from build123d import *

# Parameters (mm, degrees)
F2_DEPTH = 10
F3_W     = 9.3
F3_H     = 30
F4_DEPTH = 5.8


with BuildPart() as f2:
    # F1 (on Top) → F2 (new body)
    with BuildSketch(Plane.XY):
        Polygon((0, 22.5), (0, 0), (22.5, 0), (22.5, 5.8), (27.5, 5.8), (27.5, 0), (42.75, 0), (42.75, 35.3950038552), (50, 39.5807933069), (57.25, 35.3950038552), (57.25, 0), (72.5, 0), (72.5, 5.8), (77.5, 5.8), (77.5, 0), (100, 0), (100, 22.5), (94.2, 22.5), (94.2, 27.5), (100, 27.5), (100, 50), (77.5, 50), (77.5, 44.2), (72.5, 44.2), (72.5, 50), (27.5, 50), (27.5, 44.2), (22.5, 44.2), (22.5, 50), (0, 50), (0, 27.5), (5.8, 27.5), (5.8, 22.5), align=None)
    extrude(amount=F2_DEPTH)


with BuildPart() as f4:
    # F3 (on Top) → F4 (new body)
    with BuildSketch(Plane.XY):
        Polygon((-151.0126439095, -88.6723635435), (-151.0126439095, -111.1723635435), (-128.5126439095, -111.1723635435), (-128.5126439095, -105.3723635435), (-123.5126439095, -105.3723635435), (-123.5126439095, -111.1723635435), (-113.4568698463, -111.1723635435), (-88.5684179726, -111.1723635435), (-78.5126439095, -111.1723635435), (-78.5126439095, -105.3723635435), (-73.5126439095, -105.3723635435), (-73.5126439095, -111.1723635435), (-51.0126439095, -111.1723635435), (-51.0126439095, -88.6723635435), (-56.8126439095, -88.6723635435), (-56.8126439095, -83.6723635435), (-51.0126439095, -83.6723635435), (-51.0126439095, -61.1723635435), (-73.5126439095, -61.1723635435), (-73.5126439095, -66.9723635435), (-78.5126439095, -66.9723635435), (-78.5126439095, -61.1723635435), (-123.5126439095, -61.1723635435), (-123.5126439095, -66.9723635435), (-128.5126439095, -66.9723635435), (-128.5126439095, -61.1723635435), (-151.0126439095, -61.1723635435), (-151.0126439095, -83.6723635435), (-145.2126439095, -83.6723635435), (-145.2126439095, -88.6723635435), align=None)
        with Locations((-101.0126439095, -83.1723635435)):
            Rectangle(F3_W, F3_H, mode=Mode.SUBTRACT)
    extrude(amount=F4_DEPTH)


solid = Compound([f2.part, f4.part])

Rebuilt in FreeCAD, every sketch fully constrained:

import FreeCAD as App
import Part
import Sketcher

V = App.Vector
Q = App.Units.Quantity

doc = App.newDocument("Part")
body = doc.addObject("PartDesign::Body", "Body")

sketch1 = doc.addObject("Sketcher::SketchObject", "Sketch")
body.addObject(sketch1)
sketch1.AttachmentSupport = (doc.XY_Plane, [""])
sketch1.MapMode = "FlatFace"
sketch1.addGeometry([
    Part.LineSegment(V(0, 22, 0), V(0, 0, 0)),
    Part.LineSegment(V(0, 0, 0), V(22, 0, 0)),
    Part.LineSegment(V(22, 0, 0), V(22, 6, 0)),
    Part.LineSegment(V(22, 6, 0), V(28, 6, 0)),
    Part.LineSegment(V(28, 6, 0), V(28, 0, 0)),
    Part.LineSegment(V(28, 0, 0), V(43, 0, 0)),
    Part.LineSegment(V(43, 0, 0), V(43, 35, 0)),
    Part.LineSegment(V(43, 35, 0), V(50, 40, 0)),
    Part.LineSegment(V(50, 40, 0), V(57, 35, 0)),
    Part.LineSegment(V(57, 35, 0), V(57, 0, 0)),
    Part.LineSegment(V(57, 0, 0), V(72, 0, 0)),
    Part.LineSegment(V(72, 0, 0), V(72, 6, 0)),
    Part.LineSegment(V(72, 6, 0), V(78, 6, 0)),
    Part.LineSegment(V(78, 6, 0), V(78, 0, 0)),
    Part.LineSegment(V(78, 0, 0), V(100, 0, 0)),
    Part.LineSegment(V(100, 0, 0), V(100, 22, 0)),
    Part.LineSegment(V(100, 22, 0), V(94, 22, 0)),
    Part.LineSegment(V(94, 22, 0), V(94, 28, 0)),
    Part.LineSegment(V(94, 28, 0), V(100, 28, 0)),
    Part.LineSegment(V(100, 28, 0), V(100, 50, 0)),
    Part.LineSegment(V(100, 50, 0), V(78, 50, 0)),
    Part.LineSegment(V(78, 50, 0), V(78, 44, 0)),
    Part.LineSegment(V(78, 44, 0), V(72, 44, 0)),
    Part.LineSegment(V(72, 44, 0), V(72, 50, 0)),
    Part.LineSegment(V(72, 50, 0), V(28, 50, 0)),
    Part.LineSegment(V(28, 50, 0), V(28, 44, 0)),
    Part.LineSegment(V(28, 44, 0), V(22, 44, 0)),
    Part.LineSegment(V(22, 44, 0), V(22, 50, 0)),
    Part.LineSegment(V(22, 50, 0), V(0, 50, 0)),
    Part.LineSegment(V(0, 50, 0), V(0, 28, 0)),
    Part.LineSegment(V(0, 28, 0), V(6, 28, 0)),
    Part.LineSegment(V(6, 28, 0), V(6, 22, 0)),
    Part.LineSegment(V(6, 22, 0), V(0, 22, 0)),
], False)
sketch1.addConstraint([
    Sketcher.Constraint("Coincident", 0, 2, 1, 1),
    Sketcher.Constraint("Coincident", 1, 2, 2, 1),
    Sketcher.Constraint("Coincident", 2, 2, 3, 1),
    Sketcher.Constraint("Coincident", 3, 2, 4, 1),
    Sketcher.Constraint("Coincident", 4, 2, 5, 1),
    Sketcher.Constraint("Coincident", 5, 2, 6, 1),
    Sketcher.Constraint("Coincident", 6, 2, 7, 1),
    Sketcher.Constraint("Coincident", 7, 2, 8, 1),
    Sketcher.Constraint("Coincident", 8, 2, 9, 1),
    Sketcher.Constraint("Coincident", 9, 2, 10, 1),
    Sketcher.Constraint("Coincident", 10, 2, 11, 1),
    Sketcher.Constraint("Coincident", 11, 2, 12, 1),
    Sketcher.Constraint("Coincident", 12, 2, 13, 1),
    Sketcher.Constraint("Coincident", 13, 2, 14, 1),
    Sketcher.Constraint("Coincident", 14, 2, 15, 1),
    Sketcher.Constraint("Coincident", 15, 2, 16, 1),
    Sketcher.Constraint("Coincident", 16, 2, 17, 1),
    Sketcher.Constraint("Coincident", 17, 2, 18, 1),
    Sketcher.Constraint("Coincident", 18, 2, 19, 1),
    Sketcher.Constraint("Coincident", 19, 2, 20, 1),
    Sketcher.Constraint("Coincident", 20, 2, 21, 1),
    Sketcher.Constraint("Coincident", 21, 2, 22, 1),
    Sketcher.Constraint("Coincident", 22, 2, 23, 1),
    Sketcher.Constraint("Coincident", 23, 2, 24, 1),
    Sketcher.Constraint("Coincident", 24, 2, 25, 1),
    Sketcher.Constraint("Coincident", 25, 2, 26, 1),
    Sketcher.Constraint("Coincident", 26, 2, 27, 1),
    Sketcher.Constraint("Coincident", 27, 2, 28, 1),
    Sketcher.Constraint("Coincident", 28, 2, 29, 1),
    Sketcher.Constraint("Coincident", 29, 2, 30, 1),
    Sketcher.Constraint("Coincident", 30, 2, 31, 1),
    Sketcher.Constraint("Coincident", 31, 2, 32, 1),
    Sketcher.Constraint("Coincident", 32, 2, 0, 1),
    Sketcher.Constraint("Vertical", 0),
    Sketcher.Constraint("Horizontal", 1),
    Sketcher.Constraint("Vertical", 2),
    Sketcher.Constraint("Horizontal", 3),
    Sketcher.Constraint("Vertical", 4),
    Sketcher.Constraint("Horizontal", 5),
    Sketcher.Constraint("Vertical", 6),
    Sketcher.Constraint("Vertical", 9),
    Sketcher.Constraint("Horizontal", 10),
    Sketcher.Constraint("Vertical", 11),
    Sketcher.Constraint("Horizontal", 12),
    Sketcher.Constraint("Vertical", 13),
    Sketcher.Constraint("Horizontal", 14),
    Sketcher.Constraint("Vertical", 15),
    Sketcher.Constraint("Horizontal", 16),
    Sketcher.Constraint("Vertical", 17),
    Sketcher.Constraint("Horizontal", 18),
    Sketcher.Constraint("Vertical", 19),
    Sketcher.Constraint("Horizontal", 20),
    Sketcher.Constraint("Vertical", 21),
    Sketcher.Constraint("Horizontal", 22),
    Sketcher.Constraint("Vertical", 23),
    Sketcher.Constraint("Horizontal", 24),
    Sketcher.Constraint("Vertical", 25),
    Sketcher.Constraint("Horizontal", 26),
    Sketcher.Constraint("Vertical", 27),
    Sketcher.Constraint("Horizontal", 28),
    Sketcher.Constraint("Vertical", 29),
    Sketcher.Constraint("Horizontal", 30),
    Sketcher.Constraint("Vertical", 31),
    Sketcher.Constraint("Horizontal", 32),
    Sketcher.Constraint("Coincident", 0, 2, -1, 1),
    Sketcher.Constraint("PointOnObject", 4, 2, -1),
    Sketcher.Constraint("PointOnObject", 9, 2, -1),
    Sketcher.Constraint("PointOnObject", 13, 2, -1),
    Sketcher.Constraint("PointOnObject", 28, 2, -2),
    Sketcher.Constraint("Horizontal", 6, 2, 8, 2),
    Sketcher.Constraint("Horizontal", 3, 2, 11, 2),
    Sketcher.Constraint("Horizontal", 20, 2, 23, 2),
    Sketcher.Constraint("Horizontal", 22, 2, 25, 2),
    Sketcher.Constraint("Horizontal", 24, 2, 27, 2),
    Sketcher.Constraint("Horizontal", 18, 2, 29, 2),
    Sketcher.Constraint("Horizontal", 16, 2, 31, 2),
    Sketcher.Constraint("Vertical", 15, 2, 18, 2),
    Sketcher.Constraint("Vertical", 13, 2, 20, 2),
    Sketcher.Constraint("Vertical", 11, 2, 22, 2),
    Sketcher.Constraint("Vertical", 4, 2, 24, 2),
    Sketcher.Constraint("Vertical", 2, 2, 26, 2),
    Sketcher.Constraint("Equal", 5, 10),
    Sketcher.Constraint("Equal", 3, 12),
    Sketcher.Constraint("Equal", 1, 14),
    Sketcher.Constraint("Equal", 18, 30),
    Sketcher.Constraint("Equal", 28, 0),
    Sketcher.Constraint("Equal", 32, 2),
    Sketcher.Constraint("Equal", 26, 17),
    Sketcher.Constraint("Equal", 15, 19),
    Sketcher.Constraint("Equal", 13, 21),
    Sketcher.Constraint("Equal", 7, 8),
    Sketcher.Constraint("DistanceX", 3, 1, 3, 2, 5.0),
    Sketcher.Constraint("DistanceX", 24, 2, 24, 1, 45.0),
    Sketcher.Constraint("Angle", 7, Q("30 deg")),
    Sketcher.Constraint("DistanceX", 1, 1, 1, 2, 22.5),
    Sketcher.Constraint("DistanceX", 16, 2, 16, 1, 5.8),
    Sketcher.Constraint("DistanceX", 5, 1, 5, 2, 15.25),
    Sketcher.Constraint("DistanceY", 6, 1, 6, 2, 35.395004),
])
pad1 = doc.addObject("PartDesign::Pad", "Pad")
body.addObject(pad1)
pad1.Profile = sketch1
pad1.Length = 10
body2 = doc.addObject("PartDesign::Body", "Body001")

sketch2 = doc.addObject("Sketcher::SketchObject", "Sketch001")
body2.addObject(sketch2)
sketch2.AttachmentSupport = (doc.getObject("XY_Plane001"), [""])
sketch2.MapMode = "FlatFace"
sketch2.addGeometry([
    Part.LineSegment(V(-151, -89, 0), V(-151, -111, 0)),
    Part.LineSegment(V(-151, -111, 0), V(-129, -111, 0)),
    Part.LineSegment(V(-129, -111, 0), V(-129, -105, 0)),
    Part.LineSegment(V(-129, -105, 0), V(-124, -105, 0)),
    Part.LineSegment(V(-124, -105, 0), V(-124, -111, 0)),
    Part.LineSegment(V(-124, -111, 0), V(-79, -111, 0)),
    Part.LineSegment(V(-79, -111, 0), V(-79, -105, 0)),
    Part.LineSegment(V(-79, -105, 0), V(-74, -105, 0)),
    Part.LineSegment(V(-74, -105, 0), V(-74, -111, 0)),
    Part.LineSegment(V(-74, -111, 0), V(-51, -111, 0)),
    Part.LineSegment(V(-51, -111, 0), V(-51, -89, 0)),
    Part.LineSegment(V(-51, -89, 0), V(-57, -89, 0)),
    Part.LineSegment(V(-57, -89, 0), V(-57, -84, 0)),
    Part.LineSegment(V(-57, -84, 0), V(-51, -84, 0)),
    Part.LineSegment(V(-51, -84, 0), V(-51, -61, 0)),
    Part.LineSegment(V(-51, -61, 0), V(-74, -61, 0)),
    Part.LineSegment(V(-74, -61, 0), V(-74, -67, 0)),
    Part.LineSegment(V(-74, -67, 0), V(-79, -67, 0)),
    Part.LineSegment(V(-79, -67, 0), V(-79, -61, 0)),
    Part.LineSegment(V(-79, -61, 0), V(-124, -61, 0)),
    Part.LineSegment(V(-124, -61, 0), V(-124, -67, 0)),
    Part.LineSegment(V(-124, -67, 0), V(-129, -67, 0)),
    Part.LineSegment(V(-129, -67, 0), V(-129, -61, 0)),
    Part.LineSegment(V(-129, -61, 0), V(-151, -61, 0)),
    Part.LineSegment(V(-151, -61, 0), V(-151, -84, 0)),
    Part.LineSegment(V(-151, -84, 0), V(-145, -84, 0)),
    Part.LineSegment(V(-145, -84, 0), V(-145, -89, 0)),
    Part.LineSegment(V(-145, -89, 0), V(-151, -89, 0)),
    Part.LineSegment(V(-96, -98, 0), V(-106, -98, 0)),
    Part.LineSegment(V(-106, -98, 0), V(-106, -68, 0)),
    Part.LineSegment(V(-106, -68, 0), V(-96, -68, 0)),
    Part.LineSegment(V(-96, -68, 0), V(-96, -98, 0)),
], False)
sketch2.addConstraint([
    Sketcher.Constraint("Coincident", 0, 2, 1, 1),
    Sketcher.Constraint("Coincident", 1, 2, 2, 1),
    Sketcher.Constraint("Coincident", 2, 2, 3, 1),
    Sketcher.Constraint("Coincident", 3, 2, 4, 1),
    Sketcher.Constraint("Coincident", 4, 2, 5, 1),
    Sketcher.Constraint("Coincident", 5, 2, 6, 1),
    Sketcher.Constraint("Coincident", 6, 2, 7, 1),
    Sketcher.Constraint("Coincident", 7, 2, 8, 1),
    Sketcher.Constraint("Coincident", 8, 2, 9, 1),
    Sketcher.Constraint("Coincident", 9, 2, 10, 1),
    Sketcher.Constraint("Coincident", 10, 2, 11, 1),
    Sketcher.Constraint("Coincident", 11, 2, 12, 1),
    Sketcher.Constraint("Coincident", 12, 2, 13, 1),
    Sketcher.Constraint("Coincident", 13, 2, 14, 1),
    Sketcher.Constraint("Coincident", 14, 2, 15, 1),
    Sketcher.Constraint("Coincident", 15, 2, 16, 1),
    Sketcher.Constraint("Coincident", 16, 2, 17, 1),
    Sketcher.Constraint("Coincident", 17, 2, 18, 1),
    Sketcher.Constraint("Coincident", 18, 2, 19, 1),
    Sketcher.Constraint("Coincident", 19, 2, 20, 1),
    Sketcher.Constraint("Coincident", 20, 2, 21, 1),
    Sketcher.Constraint("Coincident", 21, 2, 22, 1),
    Sketcher.Constraint("Coincident", 22, 2, 23, 1),
    Sketcher.Constraint("Coincident", 23, 2, 24, 1),
    Sketcher.Constraint("Coincident", 24, 2, 25, 1),
    Sketcher.Constraint("Coincident", 25, 2, 26, 1),
    Sketcher.Constraint("Coincident", 26, 2, 27, 1),
    Sketcher.Constraint("Coincident", 27, 2, 0, 1),
    Sketcher.Constraint("Coincident", 28, 2, 29, 1),
    Sketcher.Constraint("Coincident", 29, 2, 30, 1),
    Sketcher.Constraint("Coincident", 30, 2, 31, 1),
    Sketcher.Constraint("Coincident", 31, 2, 28, 1),
    Sketcher.Constraint("Vertical", 0),
    Sketcher.Constraint("Horizontal", 1),
    Sketcher.Constraint("Vertical", 2),
    Sketcher.Constraint("Horizontal", 3),
    Sketcher.Constraint("Vertical", 4),
    Sketcher.Constraint("Horizontal", 5),
    Sketcher.Constraint("Vertical", 6),
    Sketcher.Constraint("Horizontal", 7),
    Sketcher.Constraint("Vertical", 8),
    Sketcher.Constraint("Horizontal", 9),
    Sketcher.Constraint("Vertical", 10),
    Sketcher.Constraint("Horizontal", 11),
    Sketcher.Constraint("Vertical", 12),
    Sketcher.Constraint("Horizontal", 13),
    Sketcher.Constraint("Vertical", 14),
    Sketcher.Constraint("Horizontal", 15),
    Sketcher.Constraint("Vertical", 16),
    Sketcher.Constraint("Horizontal", 17),
    Sketcher.Constraint("Vertical", 18),
    Sketcher.Constraint("Horizontal", 19),
    Sketcher.Constraint("Vertical", 20),
    Sketcher.Constraint("Horizontal", 21),
    Sketcher.Constraint("Vertical", 22),
    Sketcher.Constraint("Horizontal", 23),
    Sketcher.Constraint("Vertical", 24),
    Sketcher.Constraint("Horizontal", 25),
    Sketcher.Constraint("Vertical", 26),
    Sketcher.Constraint("Horizontal", 27),
    Sketcher.Constraint("Horizontal", 28),
    Sketcher.Constraint("Vertical", 29),
    Sketcher.Constraint("Horizontal", 30),
    Sketcher.Constraint("Vertical", 31),
    Sketcher.Constraint("Horizontal", 1, 2, 4, 2),
    Sketcher.Constraint("Horizontal", 3, 2, 6, 2),
    Sketcher.Constraint("Horizontal", 5, 2, 8, 2),
    Sketcher.Constraint("Horizontal", 15, 2, 18, 2),
    Sketcher.Constraint("Horizontal", 17, 2, 20, 2),
    Sketcher.Constraint("Horizontal", 19, 2, 22, 2),
    Sketcher.Constraint("Horizontal", 13, 2, 24, 2),
    Sketcher.Constraint("Horizontal", 11, 2, 26, 2),
    Sketcher.Constraint("Vertical", 10, 2, 13, 2),
    Sketcher.Constraint("Vertical", 8, 2, 15, 2),
    Sketcher.Constraint("Vertical", 6, 2, 17, 2),
    Sketcher.Constraint("Vertical", 4, 2, 19, 2),
    Sketcher.Constraint("Vertical", 2, 2, 21, 2),
    Sketcher.Constraint("Vertical", 0, 2, 23, 2),
    Sketcher.Constraint("Equal", 3, 7),
    Sketcher.Constraint("Equal", 1, 9),
    Sketcher.Constraint("Equal", 13, 25),
    Sketcher.Constraint("Equal", 23, 0),
    Sketcher.Constraint("Equal", 27, 2),
    Sketcher.Constraint("Equal", 21, 12),
    Sketcher.Constraint("Equal", 10, 14),
    Sketcher.Constraint("Equal", 8, 16),
    Sketcher.Constraint("DistanceX", 3, 1, 3, 2, 5.0),
    Sketcher.Constraint("DistanceX", 5, 1, 5, 2, 45.0),
    Sketcher.Constraint("DistanceY", 29, 1, 29, 2, 30.0),
    Sketcher.Constraint("DistanceX", 1, 1, 1, 2, 22.5),
    Sketcher.Constraint("DistanceX", 11, 2, 11, 1, 5.8),
    Sketcher.Constraint("DistanceX", 28, 2, 28, 1, 9.3),
    Sketcher.Constraint("DistanceY", 4, 2, 28, 2, 13.0),
    Sketcher.Constraint("DistanceX", 3, 2, 28, 2, 17.85),
    Sketcher.Constraint("DistanceX", 0, 2, -1, 1, 151.012644),
    Sketcher.Constraint("DistanceY", 0, 2, -1, 1, 111.172364),
])
pad2 = doc.addObject("PartDesign::Pad", "Pad001")
body2.addObject(pad2)
pad2.Profile = sketch2
pad2.Length = 5.8

doc.recompute()
